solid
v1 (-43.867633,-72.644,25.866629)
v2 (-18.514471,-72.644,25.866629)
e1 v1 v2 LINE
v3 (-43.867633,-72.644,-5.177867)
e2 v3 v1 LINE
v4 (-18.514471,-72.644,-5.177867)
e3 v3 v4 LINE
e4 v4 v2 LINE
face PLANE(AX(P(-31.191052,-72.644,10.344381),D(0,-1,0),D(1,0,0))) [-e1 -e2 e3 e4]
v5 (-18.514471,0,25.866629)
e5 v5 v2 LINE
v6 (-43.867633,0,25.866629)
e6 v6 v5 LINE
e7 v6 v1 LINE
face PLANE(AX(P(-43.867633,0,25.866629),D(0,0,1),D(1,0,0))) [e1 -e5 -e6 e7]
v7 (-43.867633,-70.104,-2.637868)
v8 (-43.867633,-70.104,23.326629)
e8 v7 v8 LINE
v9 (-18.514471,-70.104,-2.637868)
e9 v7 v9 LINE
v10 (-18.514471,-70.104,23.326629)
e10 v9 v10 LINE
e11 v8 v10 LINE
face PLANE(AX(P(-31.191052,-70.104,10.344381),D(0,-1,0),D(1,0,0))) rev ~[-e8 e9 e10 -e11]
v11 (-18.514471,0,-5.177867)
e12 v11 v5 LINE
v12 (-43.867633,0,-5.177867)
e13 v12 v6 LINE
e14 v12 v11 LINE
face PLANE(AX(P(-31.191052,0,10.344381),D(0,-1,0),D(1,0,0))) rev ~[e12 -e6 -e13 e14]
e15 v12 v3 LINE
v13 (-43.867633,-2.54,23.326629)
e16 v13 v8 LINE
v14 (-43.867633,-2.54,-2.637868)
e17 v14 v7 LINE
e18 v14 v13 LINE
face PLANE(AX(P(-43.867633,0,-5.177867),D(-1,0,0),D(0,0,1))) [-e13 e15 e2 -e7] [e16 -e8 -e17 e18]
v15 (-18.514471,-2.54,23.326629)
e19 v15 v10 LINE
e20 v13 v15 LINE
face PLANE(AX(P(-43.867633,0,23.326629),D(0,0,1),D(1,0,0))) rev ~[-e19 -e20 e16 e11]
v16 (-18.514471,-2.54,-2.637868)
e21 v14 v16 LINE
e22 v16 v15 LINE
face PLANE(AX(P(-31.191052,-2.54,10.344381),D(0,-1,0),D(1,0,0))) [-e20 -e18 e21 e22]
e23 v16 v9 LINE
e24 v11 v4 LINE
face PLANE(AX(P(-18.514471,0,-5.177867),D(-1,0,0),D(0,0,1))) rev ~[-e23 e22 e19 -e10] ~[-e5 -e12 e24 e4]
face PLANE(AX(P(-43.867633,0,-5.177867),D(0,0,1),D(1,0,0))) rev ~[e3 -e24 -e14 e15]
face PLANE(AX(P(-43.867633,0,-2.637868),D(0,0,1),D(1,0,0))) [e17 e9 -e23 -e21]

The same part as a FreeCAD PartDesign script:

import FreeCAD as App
import Part
import Sketcher
Q = App.Units.Quantity


def faces_at(feature, points):
    """Names of the faces that lie closest to the given points."""
    faces = feature.Shape.Faces
    near = lambda p: min(range(len(faces)), key=lambda i: faces[i].distToShape(Part.Vertex(*p))[0])
    return sorted({f"Face{near(p) + 1}" for p in points})

doc = App.newDocument("Part")
body = doc.addObject("PartDesign::Body", "Body")

# Sketch on XZ plane
sketch1 = body.newObject("Sketcher::SketchObject", "Sketch")
sketch1.AttachmentSupport = (doc.getObject("XZ_Plane"), [""])
sketch1.MapMode = "FlatFace"
sketch1.addGeometry([
    Part.LineSegment(App.Vector(-44, 26, 0), App.Vector(-44, -5, 0)),
    Part.LineSegment(App.Vector(-44, -5, 0), App.Vector(-19, -5, 0)),
    Part.LineSegment(App.Vector(-19, -5, 0), App.Vector(-19, 26, 0)),
    Part.LineSegment(App.Vector(-19, 26, 0), App.Vector(-44, 26, 0)),
], False)
sketch1.addConstraint([
    Sketcher.Constraint("Coincident", 0, 2, 1, 1),
    Sketcher.Constraint("Coincident", 1, 2, 2, 1),
    Sketcher.Constraint("Coincident", 2, 2, 3, 1),
    Sketcher.Constraint("Coincident", 3, 2, 0, 1),
    Sketcher.Constraint("Vertical", 0),
    Sketcher.Constraint("Horizontal", 1),
    Sketcher.Constraint("Vertical", 2),
    Sketcher.Constraint("Horizontal", 3),
    Sketcher.Constraint("DistanceX", 1, 1, 1, 2, 25.353162),
    Sketcher.Constraint("DistanceY", 0, 2, 0, 1, 31.044497),
    Sketcher.Constraint("DistanceX", 1, 2, -1, 1, 18.514471),
    Sketcher.Constraint("DistanceY", -1, 1, 2, 2, 25.866629),
])
pad1 = body.newObject("PartDesign::Pad", "Pad")
pad1.Profile = sketch1
pad1.Length = Q("2.86 in")
doc.recompute()

thickness = body.newObject("PartDesign::Thickness", "Thickness")
thickness.Base = (pad1, faces_at(pad1, [(-18.514, -36.322, 10.344), (-43.868, -36.322, 10.344)]))
thickness.Value = Q("0.1 in")
thickness.Reversed = True
thickness.Join = "Arc"

doc.recompute()
